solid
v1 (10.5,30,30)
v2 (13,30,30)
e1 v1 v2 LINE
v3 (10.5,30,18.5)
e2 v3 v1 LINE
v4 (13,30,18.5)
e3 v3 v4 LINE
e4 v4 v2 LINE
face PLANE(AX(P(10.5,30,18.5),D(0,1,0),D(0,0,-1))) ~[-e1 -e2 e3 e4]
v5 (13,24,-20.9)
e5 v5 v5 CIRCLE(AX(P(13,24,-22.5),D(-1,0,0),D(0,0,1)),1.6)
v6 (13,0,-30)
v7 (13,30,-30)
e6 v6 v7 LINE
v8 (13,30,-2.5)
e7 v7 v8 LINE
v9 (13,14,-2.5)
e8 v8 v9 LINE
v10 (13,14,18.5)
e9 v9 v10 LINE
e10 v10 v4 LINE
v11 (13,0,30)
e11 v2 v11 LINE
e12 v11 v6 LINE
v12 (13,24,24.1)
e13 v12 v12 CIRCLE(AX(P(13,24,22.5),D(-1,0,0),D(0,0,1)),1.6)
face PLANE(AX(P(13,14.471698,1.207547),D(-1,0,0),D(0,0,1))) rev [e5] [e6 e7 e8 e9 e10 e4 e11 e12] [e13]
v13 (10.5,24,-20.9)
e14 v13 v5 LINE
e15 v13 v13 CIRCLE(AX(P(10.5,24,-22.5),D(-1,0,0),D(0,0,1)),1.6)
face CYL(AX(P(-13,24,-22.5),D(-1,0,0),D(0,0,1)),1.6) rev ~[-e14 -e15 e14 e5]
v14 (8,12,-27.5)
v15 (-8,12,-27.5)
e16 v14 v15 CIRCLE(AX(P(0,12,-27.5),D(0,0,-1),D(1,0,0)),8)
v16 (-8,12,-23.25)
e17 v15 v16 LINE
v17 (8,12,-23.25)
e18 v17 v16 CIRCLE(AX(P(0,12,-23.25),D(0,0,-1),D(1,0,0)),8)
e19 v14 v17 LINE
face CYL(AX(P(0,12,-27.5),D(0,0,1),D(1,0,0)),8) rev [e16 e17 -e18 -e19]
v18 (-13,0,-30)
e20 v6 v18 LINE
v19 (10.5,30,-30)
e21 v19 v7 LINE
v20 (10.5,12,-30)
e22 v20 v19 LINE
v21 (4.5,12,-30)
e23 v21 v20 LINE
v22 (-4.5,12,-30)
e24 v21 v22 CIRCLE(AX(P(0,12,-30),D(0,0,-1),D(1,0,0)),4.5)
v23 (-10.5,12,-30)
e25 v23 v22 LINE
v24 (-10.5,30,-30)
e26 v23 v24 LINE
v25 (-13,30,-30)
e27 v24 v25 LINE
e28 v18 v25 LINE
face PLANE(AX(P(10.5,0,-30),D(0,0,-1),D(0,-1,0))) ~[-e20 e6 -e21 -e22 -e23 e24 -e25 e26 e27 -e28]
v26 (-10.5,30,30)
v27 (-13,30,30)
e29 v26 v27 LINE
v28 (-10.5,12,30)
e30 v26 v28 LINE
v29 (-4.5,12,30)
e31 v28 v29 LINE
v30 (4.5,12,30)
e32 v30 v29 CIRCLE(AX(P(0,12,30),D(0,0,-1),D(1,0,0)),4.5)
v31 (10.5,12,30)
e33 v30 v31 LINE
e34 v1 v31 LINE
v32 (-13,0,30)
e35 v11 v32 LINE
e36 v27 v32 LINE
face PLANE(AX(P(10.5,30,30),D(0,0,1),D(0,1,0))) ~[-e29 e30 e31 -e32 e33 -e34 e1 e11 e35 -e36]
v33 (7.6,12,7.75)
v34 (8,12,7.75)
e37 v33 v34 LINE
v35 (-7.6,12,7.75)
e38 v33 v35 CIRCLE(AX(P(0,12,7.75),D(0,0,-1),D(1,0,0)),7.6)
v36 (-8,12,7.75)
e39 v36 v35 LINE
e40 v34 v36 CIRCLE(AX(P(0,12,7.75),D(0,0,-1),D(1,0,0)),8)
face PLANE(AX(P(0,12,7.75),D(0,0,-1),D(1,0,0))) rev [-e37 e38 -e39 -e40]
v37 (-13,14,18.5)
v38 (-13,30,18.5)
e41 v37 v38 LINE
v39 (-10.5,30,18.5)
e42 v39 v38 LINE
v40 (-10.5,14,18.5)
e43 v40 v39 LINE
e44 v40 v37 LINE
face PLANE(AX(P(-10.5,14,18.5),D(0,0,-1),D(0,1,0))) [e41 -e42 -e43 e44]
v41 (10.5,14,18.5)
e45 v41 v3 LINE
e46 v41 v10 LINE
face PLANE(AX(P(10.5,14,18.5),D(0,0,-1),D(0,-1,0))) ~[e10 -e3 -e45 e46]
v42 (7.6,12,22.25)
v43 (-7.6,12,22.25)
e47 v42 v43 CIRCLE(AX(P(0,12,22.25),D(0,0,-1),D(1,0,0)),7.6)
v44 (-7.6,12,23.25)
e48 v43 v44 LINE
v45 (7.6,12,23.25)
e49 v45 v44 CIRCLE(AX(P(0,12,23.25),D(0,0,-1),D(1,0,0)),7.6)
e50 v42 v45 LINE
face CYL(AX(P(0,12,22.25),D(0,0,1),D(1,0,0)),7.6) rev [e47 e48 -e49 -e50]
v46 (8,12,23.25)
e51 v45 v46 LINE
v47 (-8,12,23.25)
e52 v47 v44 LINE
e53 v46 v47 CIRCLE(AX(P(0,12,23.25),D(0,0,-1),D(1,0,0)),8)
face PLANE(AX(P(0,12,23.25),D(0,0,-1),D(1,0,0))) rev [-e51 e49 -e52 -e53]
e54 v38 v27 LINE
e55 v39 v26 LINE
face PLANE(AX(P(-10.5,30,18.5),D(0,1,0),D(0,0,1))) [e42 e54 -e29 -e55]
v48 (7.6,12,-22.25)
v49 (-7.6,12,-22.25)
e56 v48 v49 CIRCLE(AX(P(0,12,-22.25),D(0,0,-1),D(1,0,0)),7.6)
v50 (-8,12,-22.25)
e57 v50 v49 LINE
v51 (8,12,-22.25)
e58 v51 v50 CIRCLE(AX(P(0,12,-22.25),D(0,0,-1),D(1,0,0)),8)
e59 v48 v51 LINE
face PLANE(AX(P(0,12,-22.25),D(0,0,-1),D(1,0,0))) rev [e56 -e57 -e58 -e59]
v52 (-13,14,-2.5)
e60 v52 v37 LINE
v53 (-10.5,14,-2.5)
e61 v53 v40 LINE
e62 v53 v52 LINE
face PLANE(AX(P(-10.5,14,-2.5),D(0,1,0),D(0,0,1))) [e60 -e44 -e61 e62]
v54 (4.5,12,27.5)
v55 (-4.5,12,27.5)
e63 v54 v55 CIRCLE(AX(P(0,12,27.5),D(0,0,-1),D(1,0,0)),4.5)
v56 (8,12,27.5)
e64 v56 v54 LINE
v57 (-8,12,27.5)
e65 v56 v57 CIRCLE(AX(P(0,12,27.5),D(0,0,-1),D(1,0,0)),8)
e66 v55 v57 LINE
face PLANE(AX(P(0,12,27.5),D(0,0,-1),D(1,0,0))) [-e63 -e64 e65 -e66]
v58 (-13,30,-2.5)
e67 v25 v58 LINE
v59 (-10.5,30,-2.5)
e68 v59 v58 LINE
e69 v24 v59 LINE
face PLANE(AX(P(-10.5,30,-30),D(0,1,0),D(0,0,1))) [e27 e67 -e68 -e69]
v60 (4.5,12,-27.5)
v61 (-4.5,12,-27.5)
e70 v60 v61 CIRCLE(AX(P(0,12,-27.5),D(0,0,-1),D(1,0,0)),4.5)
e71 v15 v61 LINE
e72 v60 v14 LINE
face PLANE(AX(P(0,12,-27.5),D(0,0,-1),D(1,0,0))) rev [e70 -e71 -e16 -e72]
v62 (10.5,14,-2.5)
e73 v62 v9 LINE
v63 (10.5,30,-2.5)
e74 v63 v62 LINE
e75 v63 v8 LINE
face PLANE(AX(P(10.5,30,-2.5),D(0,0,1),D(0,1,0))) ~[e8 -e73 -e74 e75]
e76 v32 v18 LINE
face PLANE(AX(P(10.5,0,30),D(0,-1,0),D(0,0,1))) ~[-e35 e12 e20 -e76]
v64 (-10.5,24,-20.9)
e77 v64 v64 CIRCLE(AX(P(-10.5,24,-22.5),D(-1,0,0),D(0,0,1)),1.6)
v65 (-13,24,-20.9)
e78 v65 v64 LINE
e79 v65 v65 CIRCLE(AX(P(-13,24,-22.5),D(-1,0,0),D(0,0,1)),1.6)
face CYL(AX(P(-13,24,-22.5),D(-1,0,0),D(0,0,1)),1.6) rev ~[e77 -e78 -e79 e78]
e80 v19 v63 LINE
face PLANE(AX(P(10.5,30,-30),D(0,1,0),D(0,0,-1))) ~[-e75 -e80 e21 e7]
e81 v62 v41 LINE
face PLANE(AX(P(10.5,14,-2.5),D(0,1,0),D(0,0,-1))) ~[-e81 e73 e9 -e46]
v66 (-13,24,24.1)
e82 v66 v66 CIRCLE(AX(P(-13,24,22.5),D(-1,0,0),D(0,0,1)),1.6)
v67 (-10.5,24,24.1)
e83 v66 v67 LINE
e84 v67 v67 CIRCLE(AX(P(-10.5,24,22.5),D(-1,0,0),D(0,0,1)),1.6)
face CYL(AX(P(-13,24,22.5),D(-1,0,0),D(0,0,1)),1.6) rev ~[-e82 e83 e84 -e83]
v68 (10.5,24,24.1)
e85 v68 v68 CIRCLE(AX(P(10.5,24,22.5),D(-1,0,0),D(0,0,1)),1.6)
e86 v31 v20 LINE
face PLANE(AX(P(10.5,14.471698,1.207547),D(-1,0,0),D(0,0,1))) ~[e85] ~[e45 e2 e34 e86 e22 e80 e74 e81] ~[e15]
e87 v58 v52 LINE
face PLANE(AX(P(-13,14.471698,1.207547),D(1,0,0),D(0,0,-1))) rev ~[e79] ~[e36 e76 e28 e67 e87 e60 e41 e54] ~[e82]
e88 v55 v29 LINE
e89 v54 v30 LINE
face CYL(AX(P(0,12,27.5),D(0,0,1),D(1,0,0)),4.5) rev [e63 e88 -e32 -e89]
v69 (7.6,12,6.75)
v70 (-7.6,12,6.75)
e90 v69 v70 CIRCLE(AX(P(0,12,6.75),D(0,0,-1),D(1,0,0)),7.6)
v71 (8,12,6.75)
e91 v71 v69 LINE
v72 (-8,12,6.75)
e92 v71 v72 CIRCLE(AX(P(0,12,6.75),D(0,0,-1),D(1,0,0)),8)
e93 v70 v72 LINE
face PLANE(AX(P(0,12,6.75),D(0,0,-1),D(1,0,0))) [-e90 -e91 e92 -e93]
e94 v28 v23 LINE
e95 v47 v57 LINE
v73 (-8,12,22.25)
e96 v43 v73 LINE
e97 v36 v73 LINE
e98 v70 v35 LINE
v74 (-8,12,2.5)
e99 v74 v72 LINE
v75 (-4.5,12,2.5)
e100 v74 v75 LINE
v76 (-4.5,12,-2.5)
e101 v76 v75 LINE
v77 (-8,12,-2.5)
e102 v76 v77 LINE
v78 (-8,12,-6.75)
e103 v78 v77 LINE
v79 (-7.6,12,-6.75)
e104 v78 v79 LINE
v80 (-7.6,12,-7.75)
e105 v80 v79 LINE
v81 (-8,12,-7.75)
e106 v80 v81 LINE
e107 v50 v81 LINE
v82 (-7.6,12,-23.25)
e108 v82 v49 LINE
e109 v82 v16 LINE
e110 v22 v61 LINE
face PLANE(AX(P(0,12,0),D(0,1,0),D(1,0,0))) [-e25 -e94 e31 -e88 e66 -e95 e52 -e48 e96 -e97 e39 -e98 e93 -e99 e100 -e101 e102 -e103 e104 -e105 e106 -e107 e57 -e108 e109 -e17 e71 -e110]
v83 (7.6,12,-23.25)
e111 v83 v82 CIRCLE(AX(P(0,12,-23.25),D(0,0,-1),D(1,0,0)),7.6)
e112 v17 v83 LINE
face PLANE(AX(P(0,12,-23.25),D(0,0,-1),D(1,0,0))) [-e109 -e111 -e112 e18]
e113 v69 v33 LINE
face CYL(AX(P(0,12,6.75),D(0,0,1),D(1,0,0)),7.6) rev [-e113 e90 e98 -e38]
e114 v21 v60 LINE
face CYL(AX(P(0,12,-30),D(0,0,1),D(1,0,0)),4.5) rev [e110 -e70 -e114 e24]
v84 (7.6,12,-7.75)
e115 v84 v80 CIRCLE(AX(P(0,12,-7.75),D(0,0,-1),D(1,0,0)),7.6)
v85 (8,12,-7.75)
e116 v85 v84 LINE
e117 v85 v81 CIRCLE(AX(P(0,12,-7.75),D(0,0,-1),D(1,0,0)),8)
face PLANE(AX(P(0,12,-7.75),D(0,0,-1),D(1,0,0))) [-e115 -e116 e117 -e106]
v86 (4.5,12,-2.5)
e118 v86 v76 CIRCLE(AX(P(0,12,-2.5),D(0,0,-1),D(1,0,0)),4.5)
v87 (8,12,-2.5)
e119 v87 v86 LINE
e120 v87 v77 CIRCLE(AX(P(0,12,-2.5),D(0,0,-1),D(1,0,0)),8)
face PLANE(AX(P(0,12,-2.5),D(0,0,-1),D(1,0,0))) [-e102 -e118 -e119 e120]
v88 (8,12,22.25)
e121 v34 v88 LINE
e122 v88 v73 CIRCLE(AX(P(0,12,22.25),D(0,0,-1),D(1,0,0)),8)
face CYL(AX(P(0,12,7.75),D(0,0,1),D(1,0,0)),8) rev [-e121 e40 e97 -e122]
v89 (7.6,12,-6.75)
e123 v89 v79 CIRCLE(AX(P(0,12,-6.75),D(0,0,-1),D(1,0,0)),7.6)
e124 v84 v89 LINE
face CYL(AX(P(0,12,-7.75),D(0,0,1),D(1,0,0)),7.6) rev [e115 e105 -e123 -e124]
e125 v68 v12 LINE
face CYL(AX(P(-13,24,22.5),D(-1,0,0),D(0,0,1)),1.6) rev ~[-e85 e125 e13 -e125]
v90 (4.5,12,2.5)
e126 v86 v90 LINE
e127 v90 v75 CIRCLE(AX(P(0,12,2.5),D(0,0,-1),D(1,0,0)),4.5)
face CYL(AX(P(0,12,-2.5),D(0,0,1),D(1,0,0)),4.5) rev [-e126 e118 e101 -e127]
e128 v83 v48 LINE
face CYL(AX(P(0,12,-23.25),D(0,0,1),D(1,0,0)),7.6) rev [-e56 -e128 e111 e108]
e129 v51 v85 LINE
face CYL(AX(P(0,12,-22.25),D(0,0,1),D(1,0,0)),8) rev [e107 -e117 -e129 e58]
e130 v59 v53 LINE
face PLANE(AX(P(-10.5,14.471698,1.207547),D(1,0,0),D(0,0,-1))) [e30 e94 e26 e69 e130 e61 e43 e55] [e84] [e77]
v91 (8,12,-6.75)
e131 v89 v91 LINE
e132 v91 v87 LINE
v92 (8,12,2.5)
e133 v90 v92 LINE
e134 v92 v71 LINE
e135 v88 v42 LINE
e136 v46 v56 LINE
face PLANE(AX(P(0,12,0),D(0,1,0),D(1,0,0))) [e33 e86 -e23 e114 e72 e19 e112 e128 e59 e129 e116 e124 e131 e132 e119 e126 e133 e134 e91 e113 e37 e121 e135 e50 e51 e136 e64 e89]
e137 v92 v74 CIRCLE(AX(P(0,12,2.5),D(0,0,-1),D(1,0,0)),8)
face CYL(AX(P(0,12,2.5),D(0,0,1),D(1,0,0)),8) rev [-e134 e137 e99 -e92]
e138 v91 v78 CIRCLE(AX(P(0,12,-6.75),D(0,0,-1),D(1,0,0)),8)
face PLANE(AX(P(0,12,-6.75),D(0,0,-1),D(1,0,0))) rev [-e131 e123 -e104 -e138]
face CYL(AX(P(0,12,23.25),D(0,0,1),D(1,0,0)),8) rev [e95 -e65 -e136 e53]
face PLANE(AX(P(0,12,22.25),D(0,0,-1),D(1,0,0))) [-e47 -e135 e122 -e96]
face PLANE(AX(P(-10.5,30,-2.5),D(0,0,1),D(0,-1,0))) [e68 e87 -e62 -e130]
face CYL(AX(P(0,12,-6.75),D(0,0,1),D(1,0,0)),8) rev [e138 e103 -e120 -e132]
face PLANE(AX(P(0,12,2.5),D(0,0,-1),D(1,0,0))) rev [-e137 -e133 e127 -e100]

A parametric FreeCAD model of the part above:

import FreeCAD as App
import Part
import Sketcher
from FreeCAD import Vector


def add_polygon(sketch, points):
    """Adds a closed chain of lines whose ends are joined by coincident constraints."""
    first, n = sketch.GeometryCount, len(points)
    for a, b in zip(points, points[1:] + points[:1]):
        sketch.addGeometry(Part.LineSegment(App.Vector(*a, 0), App.Vector(*b, 0)), False)
    for i in range(n):
        sketch.addConstraint(Sketcher.Constraint("Coincident", first + i, 2, first + (i + 1) % n, 1))

doc = App.newDocument("Part")
body = doc.addObject("PartDesign::Body", "Body")

# Sketch on XZ plane
sketch1 = doc.addObject("Sketcher::SketchObject", "Sketch")
body.addObject(sketch1)
sketch1.AttachmentSupport = (doc.XZ_Plane, [""])
sketch1.MapMode = "FlatFace"
add_polygon(sketch1, [(-10.5, -30), (-10.5, 30), (10.5, 30), (10.5, -30)])  # lines 0-3
sketch1.addConstraint(Sketcher.Constraint("Vertical", 0))
sketch1.addConstraint(Sketcher.Constraint("Horizontal", 1))
sketch1.addConstraint(Sketcher.Constraint("Vertical", 2))
sketch1.addConstraint(Sketcher.Constraint("Horizontal", 3))
sketch1.addConstraint(Sketcher.Constraint("Symmetric", 0, 2, 2, 2, -1, 1))
sketch1.addConstraint(Sketcher.Constraint("DistanceX", 1, 1, 1, 2, 21.0))
sketch1.addConstraint(Sketcher.Constraint("DistanceY", 0, 1, 0, 2, 60.0))
pad1 = doc.addObject("PartDesign::Pad", "Pad")
body.addObject(pad1)
pad1.Profile = sketch1
pad1.Length = 12
pad1.Reversed = True

# Sketch on XZ plane
sketch2 = doc.addObject("Sketcher::SketchObject", "Sketch001")
body.addObject(sketch2)
sketch2.AttachmentSupport = (doc.XZ_Plane, [""])
sketch2.MapMode = "FlatFace"
sketch2.AttachmentOffset = App.Placement(Vector(0, 0, -12), App.Rotation())
add_polygon(sketch2, [(4.5, -30), (0, -30), (0, 30), (4.5, 30), (4.5, 27.5), (8, 27.5), (8, 23.25), (7.6, 23.25), (7.6, 22.25), (8, 22.25), (8, 7.75), (7.6, 7.75), (7.6, 6.75), (8, 6.75), (8, 2.5), (4.5, 2.5), (4.5, -2.5), (8, -2.5), (8, -6.75), (7.6, -6.75), (7.6, -7.75), (8, -7.75), (8, -22.25), (7.6, -22.25), (7.6, -23.25), (8, -23.25), (8, -27.5), (4.5, -27.5)])  # lines 0-27
sketch2.addConstraint(Sketcher.Constraint("Horizontal", 0))
sketch2.addConstraint(Sketcher.Constraint("Vertical", 1))
sketch2.addConstraint(Sketcher.Constraint("Horizontal", 2))
sketch2.addConstraint(Sketcher.Constraint("Vertical", 3))
sketch2.addConstraint(Sketcher.Constraint("Horizontal", 4))
sketch2.addConstraint(Sketcher.Constraint("Vertical", 5))
sketch2.addConstraint(Sketcher.Constraint("Horizontal", 6))
sketch2.addConstraint(Sketcher.Constraint("Vertical", 7))
sketch2.addConstraint(Sketcher.Constraint("Horizontal", 8))
sketch2.addConstraint(Sketcher.Constraint("Vertical", 9))
sketch2.addConstraint(Sketcher.Constraint("Horizontal", 10))
sketch2.addConstraint(Sketcher.Constraint("Vertical", 11))
sketch2.addConstraint(Sketcher.Constraint("Horizontal", 12))
sketch2.addConstraint(Sketcher.Constraint("Vertical", 13))
sketch2.addConstraint(Sketcher.Constraint("Horizontal", 14))
sketch2.addConstraint(Sketcher.Constraint("Vertical", 15))
sketch2.addConstraint(Sketcher.Constraint("Horizontal", 16))
sketch2.addConstraint(Sketcher.Constraint("Vertical", 17))
sketch2.addConstraint(Sketcher.Constraint("Horizontal", 18))
sketch2.addConstraint(Sketcher.Constraint("Vertical", 19))
sketch2.addConstraint(Sketcher.Constraint("Horizontal", 20))
sketch2.addConstraint(Sketcher.Constraint("Vertical", 21))
sketch2.addConstraint(Sketcher.Constraint("Horizontal", 22))
sketch2.addConstraint(Sketcher.Constraint("Vertical", 23))
sketch2.addConstraint(Sketcher.Constraint("Horizontal", 24))
sketch2.addConstraint(Sketcher.Constraint("Vertical", 25))
sketch2.addConstraint(Sketcher.Constraint("Horizontal", 26))
sketch2.addConstraint(Sketcher.Constraint("Vertical", 27))
sketch2.addConstraint(Sketcher.Constraint("Symmetric", 0, 2, 1, 2, -1, 1))
sketch2.addConstraint(Sketcher.Constraint("Symmetric", 13, 2, 16, 2, -1))
sketch2.addConstraint(Sketcher.Constraint("Symmetric", 11, 2, 18, 2, -1))
sketch2.addConstraint(Sketcher.Constraint("Symmetric", 9, 2, 20, 2, -1))
sketch2.addConstraint(Sketcher.Constraint("Symmetric", 7, 2, 22, 2, -1))
sketch2.addConstraint(Sketcher.Constraint("Symmetric", 5, 2, 24, 2, -1))
sketch2.addConstraint(Sketcher.Constraint("Symmetric", 3, 2, 26, 2, -1))
sketch2.addConstraint(Sketcher.Constraint("Vertical", 5, 2, 8, 2))
sketch2.addConstraint(Sketcher.Constraint("Vertical", 7, 2, 10, 2))
sketch2.addConstraint(Sketcher.Constraint("Vertical", 9, 2, 12, 2))
sketch2.addConstraint(Sketcher.Constraint("Vertical", 3, 2, 14, 2))
sketch2.addConstraint(Sketcher.Constraint("Equal", 7, 11))
sketch2.addConstraint(Sketcher.Constraint("Equal", 5, 13))
sketch2.addConstraint(Sketcher.Constraint("DistanceY", 1, 1, 1, 2, 60.0))
sketch2.addConstraint(Sketcher.Constraint("DistanceY", 7, 2, 7, 1, 1.0))
sketch2.addConstraint(Sketcher.Constraint("DistanceY", 15, 2, 15, 1, 5.0))
sketch2.addConstraint(Sketcher.Constraint("DistanceX", 0, 2, 0, 1, 4.5))
sketch2.addConstraint(Sketcher.Constraint("DistanceX", 4, 1, 4, 2, 3.5))
sketch2.addConstraint(Sketcher.Constraint("DistanceX", 6, 2, 6, 1, 0.4))
sketch2.addConstraint(Sketcher.Constraint("DistanceY", 3, 2, 3, 1, 2.5))
sketch2.addConstraint(Sketcher.Constraint("DistanceY", 9, 2, 9, 1, 14.5))
groove = doc.addObject("PartDesign::Groove", "Groove")
body.addObject(groove)
groove.Profile = sketch2
groove.ReferenceAxis = (sketch2, ["V_Axis"])
groove.Angle = 360

# Sketch on YZ plane
sketch3 = doc.addObject("Sketcher::SketchObject", "Sketch002")
body.addObject(sketch3)
sketch3.AttachmentSupport = (doc.YZ_Plane, [""])
sketch3.MapMode = "FlatFace"
sketch3.AttachmentOffset = App.Placement(Vector(0, 0, -10.5), App.Rotation())
add_polygon(sketch3, [(30, -30), (0, -30), (0, 30), (30, 30), (30, 18.5), (14, 18.5), (14, -2.5), (30, -2.5)])  # lines 0-7
sketch3.addConstraint(Sketcher.Constraint("Horizontal", 0))
sketch3.addConstraint(Sketcher.Constraint("Vertical", 1))
sketch3.addConstraint(Sketcher.Constraint("Horizontal", 2))
sketch3.addConstraint(Sketcher.Constraint("Vertical", 3))
sketch3.addConstraint(Sketcher.Constraint("Horizontal", 4))
sketch3.addConstraint(Sketcher.Constraint("Vertical", 5))
sketch3.addConstraint(Sketcher.Constraint("Horizontal", 6))
sketch3.addConstraint(Sketcher.Constraint("Vertical", 7))
sketch3.addConstraint(Sketcher.Constraint("Symmetric", 0, 2, 1, 2, -1, 1))
sketch3.addConstraint(Sketcher.Constraint("Vertical", 3, 2, 6, 2))
sketch3.addConstraint(Sketcher.Constraint("DistanceX", 0, 2, 0, 1, 30.0))
sketch3.addConstraint(Sketcher.Constraint("DistanceX", 4, 2, 4, 1, 16.0))
sketch3.addConstraint(Sketcher.Constraint("DistanceY", 1, 1, 1, 2, 60.0))
sketch3.addConstraint(Sketcher.Constraint("DistanceY", 5, 2, 5, 1, 21.0))
sketch3.addConstraint(Sketcher.Constraint("DistanceY", 3, 2, 3, 1, 11.5))
pad2 = doc.addObject("PartDesign::Pad", "Pad001")
body.addObject(pad2)
pad2.Profile = sketch3
pad2.Length = 2.5
pad2.Reversed = True
doc.recompute()

mirrored = doc.addObject("PartDesign::Mirrored", "Mirrored")
body.addObject(mirrored)
mirrored.Originals = [pad2]
mirrored.MirrorPlane = (doc.YZ_Plane, [""])
body.Tip = mirrored

# Sketch on YZ plane
sketch4 = doc.addObject("Sketcher::SketchObject", "Sketch003")
body.addObject(sketch4)
sketch4.AttachmentSupport = (doc.YZ_Plane, [""])
sketch4.MapMode = "FlatFace"
sketch4.AttachmentOffset = App.Placement(Vector(0, 0, -13), App.Rotation())
sketch4.addGeometry(Part.Circle(Vector(24, 22.5, 0), Vector(0, 0, 1), 1.6), False)
sketch4.addGeometry(Part.Circle(Vector(24, -22.5, 0), Vector(0, 0, 1), 1.6), False)
sketch4.addConstraint(Sketcher.Constraint("Equal", 0, 1))
sketch4.addConstraint(Sketcher.Constraint("Symmetric", 0, 3, 1, 3, -1))
sketch4.addConstraint(Sketcher.Constraint("Diameter", 0, 3.2))
sketch4.addConstraint(Sketcher.Constraint("DistanceX", -1, 1, 0, 3, 24.0))
sketch4.addConstraint(Sketcher.Constraint("DistanceY", 1, 3, 0, 3, 45.0))
pocket1 = doc.addObject("PartDesign::Pocket", "Pocket")
body.addObject(pocket1)
pocket1.Profile = sketch4
pocket1.Type = "ThroughAll"
pocket1.Reversed = True

doc.recompute()
